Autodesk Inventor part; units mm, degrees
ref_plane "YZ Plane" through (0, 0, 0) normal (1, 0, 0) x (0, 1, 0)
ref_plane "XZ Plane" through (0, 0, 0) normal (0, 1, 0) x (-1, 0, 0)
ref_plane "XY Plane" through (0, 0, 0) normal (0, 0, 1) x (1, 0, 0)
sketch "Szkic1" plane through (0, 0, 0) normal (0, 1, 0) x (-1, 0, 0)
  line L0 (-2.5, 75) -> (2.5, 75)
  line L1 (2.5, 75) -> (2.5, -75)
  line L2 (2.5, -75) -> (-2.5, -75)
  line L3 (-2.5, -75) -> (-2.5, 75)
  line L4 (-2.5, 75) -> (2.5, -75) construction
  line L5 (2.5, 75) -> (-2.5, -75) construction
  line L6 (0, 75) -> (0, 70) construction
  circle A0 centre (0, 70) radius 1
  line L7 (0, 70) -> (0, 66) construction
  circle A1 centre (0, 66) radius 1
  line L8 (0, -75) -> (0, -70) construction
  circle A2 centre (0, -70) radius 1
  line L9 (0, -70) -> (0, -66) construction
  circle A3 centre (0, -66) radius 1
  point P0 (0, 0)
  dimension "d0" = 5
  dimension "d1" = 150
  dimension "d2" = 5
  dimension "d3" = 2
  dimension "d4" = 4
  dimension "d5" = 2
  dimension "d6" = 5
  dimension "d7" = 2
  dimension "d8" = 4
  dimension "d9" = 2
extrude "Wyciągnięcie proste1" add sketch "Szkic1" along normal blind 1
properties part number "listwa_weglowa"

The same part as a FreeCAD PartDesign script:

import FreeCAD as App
import Part
import Sketcher

V = App.Vector
Q = App.Units.Quantity


def add_polygon(sketch, points):
    """Adds a closed chain of lines whose ends are joined by coincident constraints."""
    first, n = sketch.GeometryCount, len(points)
    for a, b in zip(points, points[1:] + points[:1]):
        sketch.addGeometry(Part.LineSegment(App.Vector(*a, 0), App.Vector(*b, 0)), False)
    for i in range(n):
        sketch.addConstraint(Sketcher.Constraint("Coincident", first + i, 2, first + (i + 1) % n, 1))

doc = App.newDocument("Part")
body = doc.addObject("PartDesign::Body", "Body")

# Sketch on XZ plane
sketch1 = body.newObject("Sketcher::SketchObject", "Sketch")
sketch1.AttachmentSupport = (doc.getObject("XZ_Plane"), [""])
sketch1.MapMode = "FlatFace"
add_polygon(sketch1, [(-2.5, 75), (2.5, 75), (2.5, -75), (-2.5, -75)])  # lines 0-3
sketch1.addGeometry(Part.Circle(V(0, -70, 0), V(0, 0, 1), 1), False)  # 4
sketch1.addGeometry(Part.Circle(V(0, -66, 0), V(0, 0, 1), 1), False)  # 5
sketch1.addGeometry(Part.Circle(V(0, 66, 0), V(0, 0, 1), 1), False)  # 6
sketch1.addGeometry(Part.Circle(V(0, 70, 0), V(0, 0, 1), 1), False)  # 7
sketch1.addConstraint([
    Sketcher.Constraint("Horizontal", 0),
    Sketcher.Constraint("Vertical", 1),
    Sketcher.Constraint("Horizontal", 2),
    Sketcher.Constraint("Vertical", 3),
    Sketcher.Constraint("Equal", 4, 5),
    Sketcher.Constraint("Equal", 5, 6),
    Sketcher.Constraint("Equal", 6, 7),
    Sketcher.Constraint("Symmetric", 5, 3, 6, 3, -1, 1),
    Sketcher.Constraint("Symmetric", 4, 3, 7, 3, -1, 1),
    Sketcher.Constraint("Symmetric", 0, 2, 2, 2, -1, 1),
    Sketcher.Constraint("PointOnObject", 4, 3, -2),
    Sketcher.Constraint("PointOnObject", 5, 3, -2),
    Sketcher.Constraint("Diameter", 4, Q("2 mm")),
    Sketcher.Constraint("DistanceX", 0, 1, 0, 2, Q("5 mm")),
    Sketcher.Constraint("DistanceY", 1, 2, 1, 1, Q("150 mm")),
    Sketcher.Constraint("DistanceY", 4, 3, 5, 3, Q("4 mm")),
    Sketcher.Constraint("DistanceY", 7, 3, 0, 2, Q("5 mm")),
])
pad1 = body.newObject("PartDesign::Pad", "Pad")
pad1.Profile = sketch1
pad1.Length = 1
pad1.Reversed = True

doc.recompute()
